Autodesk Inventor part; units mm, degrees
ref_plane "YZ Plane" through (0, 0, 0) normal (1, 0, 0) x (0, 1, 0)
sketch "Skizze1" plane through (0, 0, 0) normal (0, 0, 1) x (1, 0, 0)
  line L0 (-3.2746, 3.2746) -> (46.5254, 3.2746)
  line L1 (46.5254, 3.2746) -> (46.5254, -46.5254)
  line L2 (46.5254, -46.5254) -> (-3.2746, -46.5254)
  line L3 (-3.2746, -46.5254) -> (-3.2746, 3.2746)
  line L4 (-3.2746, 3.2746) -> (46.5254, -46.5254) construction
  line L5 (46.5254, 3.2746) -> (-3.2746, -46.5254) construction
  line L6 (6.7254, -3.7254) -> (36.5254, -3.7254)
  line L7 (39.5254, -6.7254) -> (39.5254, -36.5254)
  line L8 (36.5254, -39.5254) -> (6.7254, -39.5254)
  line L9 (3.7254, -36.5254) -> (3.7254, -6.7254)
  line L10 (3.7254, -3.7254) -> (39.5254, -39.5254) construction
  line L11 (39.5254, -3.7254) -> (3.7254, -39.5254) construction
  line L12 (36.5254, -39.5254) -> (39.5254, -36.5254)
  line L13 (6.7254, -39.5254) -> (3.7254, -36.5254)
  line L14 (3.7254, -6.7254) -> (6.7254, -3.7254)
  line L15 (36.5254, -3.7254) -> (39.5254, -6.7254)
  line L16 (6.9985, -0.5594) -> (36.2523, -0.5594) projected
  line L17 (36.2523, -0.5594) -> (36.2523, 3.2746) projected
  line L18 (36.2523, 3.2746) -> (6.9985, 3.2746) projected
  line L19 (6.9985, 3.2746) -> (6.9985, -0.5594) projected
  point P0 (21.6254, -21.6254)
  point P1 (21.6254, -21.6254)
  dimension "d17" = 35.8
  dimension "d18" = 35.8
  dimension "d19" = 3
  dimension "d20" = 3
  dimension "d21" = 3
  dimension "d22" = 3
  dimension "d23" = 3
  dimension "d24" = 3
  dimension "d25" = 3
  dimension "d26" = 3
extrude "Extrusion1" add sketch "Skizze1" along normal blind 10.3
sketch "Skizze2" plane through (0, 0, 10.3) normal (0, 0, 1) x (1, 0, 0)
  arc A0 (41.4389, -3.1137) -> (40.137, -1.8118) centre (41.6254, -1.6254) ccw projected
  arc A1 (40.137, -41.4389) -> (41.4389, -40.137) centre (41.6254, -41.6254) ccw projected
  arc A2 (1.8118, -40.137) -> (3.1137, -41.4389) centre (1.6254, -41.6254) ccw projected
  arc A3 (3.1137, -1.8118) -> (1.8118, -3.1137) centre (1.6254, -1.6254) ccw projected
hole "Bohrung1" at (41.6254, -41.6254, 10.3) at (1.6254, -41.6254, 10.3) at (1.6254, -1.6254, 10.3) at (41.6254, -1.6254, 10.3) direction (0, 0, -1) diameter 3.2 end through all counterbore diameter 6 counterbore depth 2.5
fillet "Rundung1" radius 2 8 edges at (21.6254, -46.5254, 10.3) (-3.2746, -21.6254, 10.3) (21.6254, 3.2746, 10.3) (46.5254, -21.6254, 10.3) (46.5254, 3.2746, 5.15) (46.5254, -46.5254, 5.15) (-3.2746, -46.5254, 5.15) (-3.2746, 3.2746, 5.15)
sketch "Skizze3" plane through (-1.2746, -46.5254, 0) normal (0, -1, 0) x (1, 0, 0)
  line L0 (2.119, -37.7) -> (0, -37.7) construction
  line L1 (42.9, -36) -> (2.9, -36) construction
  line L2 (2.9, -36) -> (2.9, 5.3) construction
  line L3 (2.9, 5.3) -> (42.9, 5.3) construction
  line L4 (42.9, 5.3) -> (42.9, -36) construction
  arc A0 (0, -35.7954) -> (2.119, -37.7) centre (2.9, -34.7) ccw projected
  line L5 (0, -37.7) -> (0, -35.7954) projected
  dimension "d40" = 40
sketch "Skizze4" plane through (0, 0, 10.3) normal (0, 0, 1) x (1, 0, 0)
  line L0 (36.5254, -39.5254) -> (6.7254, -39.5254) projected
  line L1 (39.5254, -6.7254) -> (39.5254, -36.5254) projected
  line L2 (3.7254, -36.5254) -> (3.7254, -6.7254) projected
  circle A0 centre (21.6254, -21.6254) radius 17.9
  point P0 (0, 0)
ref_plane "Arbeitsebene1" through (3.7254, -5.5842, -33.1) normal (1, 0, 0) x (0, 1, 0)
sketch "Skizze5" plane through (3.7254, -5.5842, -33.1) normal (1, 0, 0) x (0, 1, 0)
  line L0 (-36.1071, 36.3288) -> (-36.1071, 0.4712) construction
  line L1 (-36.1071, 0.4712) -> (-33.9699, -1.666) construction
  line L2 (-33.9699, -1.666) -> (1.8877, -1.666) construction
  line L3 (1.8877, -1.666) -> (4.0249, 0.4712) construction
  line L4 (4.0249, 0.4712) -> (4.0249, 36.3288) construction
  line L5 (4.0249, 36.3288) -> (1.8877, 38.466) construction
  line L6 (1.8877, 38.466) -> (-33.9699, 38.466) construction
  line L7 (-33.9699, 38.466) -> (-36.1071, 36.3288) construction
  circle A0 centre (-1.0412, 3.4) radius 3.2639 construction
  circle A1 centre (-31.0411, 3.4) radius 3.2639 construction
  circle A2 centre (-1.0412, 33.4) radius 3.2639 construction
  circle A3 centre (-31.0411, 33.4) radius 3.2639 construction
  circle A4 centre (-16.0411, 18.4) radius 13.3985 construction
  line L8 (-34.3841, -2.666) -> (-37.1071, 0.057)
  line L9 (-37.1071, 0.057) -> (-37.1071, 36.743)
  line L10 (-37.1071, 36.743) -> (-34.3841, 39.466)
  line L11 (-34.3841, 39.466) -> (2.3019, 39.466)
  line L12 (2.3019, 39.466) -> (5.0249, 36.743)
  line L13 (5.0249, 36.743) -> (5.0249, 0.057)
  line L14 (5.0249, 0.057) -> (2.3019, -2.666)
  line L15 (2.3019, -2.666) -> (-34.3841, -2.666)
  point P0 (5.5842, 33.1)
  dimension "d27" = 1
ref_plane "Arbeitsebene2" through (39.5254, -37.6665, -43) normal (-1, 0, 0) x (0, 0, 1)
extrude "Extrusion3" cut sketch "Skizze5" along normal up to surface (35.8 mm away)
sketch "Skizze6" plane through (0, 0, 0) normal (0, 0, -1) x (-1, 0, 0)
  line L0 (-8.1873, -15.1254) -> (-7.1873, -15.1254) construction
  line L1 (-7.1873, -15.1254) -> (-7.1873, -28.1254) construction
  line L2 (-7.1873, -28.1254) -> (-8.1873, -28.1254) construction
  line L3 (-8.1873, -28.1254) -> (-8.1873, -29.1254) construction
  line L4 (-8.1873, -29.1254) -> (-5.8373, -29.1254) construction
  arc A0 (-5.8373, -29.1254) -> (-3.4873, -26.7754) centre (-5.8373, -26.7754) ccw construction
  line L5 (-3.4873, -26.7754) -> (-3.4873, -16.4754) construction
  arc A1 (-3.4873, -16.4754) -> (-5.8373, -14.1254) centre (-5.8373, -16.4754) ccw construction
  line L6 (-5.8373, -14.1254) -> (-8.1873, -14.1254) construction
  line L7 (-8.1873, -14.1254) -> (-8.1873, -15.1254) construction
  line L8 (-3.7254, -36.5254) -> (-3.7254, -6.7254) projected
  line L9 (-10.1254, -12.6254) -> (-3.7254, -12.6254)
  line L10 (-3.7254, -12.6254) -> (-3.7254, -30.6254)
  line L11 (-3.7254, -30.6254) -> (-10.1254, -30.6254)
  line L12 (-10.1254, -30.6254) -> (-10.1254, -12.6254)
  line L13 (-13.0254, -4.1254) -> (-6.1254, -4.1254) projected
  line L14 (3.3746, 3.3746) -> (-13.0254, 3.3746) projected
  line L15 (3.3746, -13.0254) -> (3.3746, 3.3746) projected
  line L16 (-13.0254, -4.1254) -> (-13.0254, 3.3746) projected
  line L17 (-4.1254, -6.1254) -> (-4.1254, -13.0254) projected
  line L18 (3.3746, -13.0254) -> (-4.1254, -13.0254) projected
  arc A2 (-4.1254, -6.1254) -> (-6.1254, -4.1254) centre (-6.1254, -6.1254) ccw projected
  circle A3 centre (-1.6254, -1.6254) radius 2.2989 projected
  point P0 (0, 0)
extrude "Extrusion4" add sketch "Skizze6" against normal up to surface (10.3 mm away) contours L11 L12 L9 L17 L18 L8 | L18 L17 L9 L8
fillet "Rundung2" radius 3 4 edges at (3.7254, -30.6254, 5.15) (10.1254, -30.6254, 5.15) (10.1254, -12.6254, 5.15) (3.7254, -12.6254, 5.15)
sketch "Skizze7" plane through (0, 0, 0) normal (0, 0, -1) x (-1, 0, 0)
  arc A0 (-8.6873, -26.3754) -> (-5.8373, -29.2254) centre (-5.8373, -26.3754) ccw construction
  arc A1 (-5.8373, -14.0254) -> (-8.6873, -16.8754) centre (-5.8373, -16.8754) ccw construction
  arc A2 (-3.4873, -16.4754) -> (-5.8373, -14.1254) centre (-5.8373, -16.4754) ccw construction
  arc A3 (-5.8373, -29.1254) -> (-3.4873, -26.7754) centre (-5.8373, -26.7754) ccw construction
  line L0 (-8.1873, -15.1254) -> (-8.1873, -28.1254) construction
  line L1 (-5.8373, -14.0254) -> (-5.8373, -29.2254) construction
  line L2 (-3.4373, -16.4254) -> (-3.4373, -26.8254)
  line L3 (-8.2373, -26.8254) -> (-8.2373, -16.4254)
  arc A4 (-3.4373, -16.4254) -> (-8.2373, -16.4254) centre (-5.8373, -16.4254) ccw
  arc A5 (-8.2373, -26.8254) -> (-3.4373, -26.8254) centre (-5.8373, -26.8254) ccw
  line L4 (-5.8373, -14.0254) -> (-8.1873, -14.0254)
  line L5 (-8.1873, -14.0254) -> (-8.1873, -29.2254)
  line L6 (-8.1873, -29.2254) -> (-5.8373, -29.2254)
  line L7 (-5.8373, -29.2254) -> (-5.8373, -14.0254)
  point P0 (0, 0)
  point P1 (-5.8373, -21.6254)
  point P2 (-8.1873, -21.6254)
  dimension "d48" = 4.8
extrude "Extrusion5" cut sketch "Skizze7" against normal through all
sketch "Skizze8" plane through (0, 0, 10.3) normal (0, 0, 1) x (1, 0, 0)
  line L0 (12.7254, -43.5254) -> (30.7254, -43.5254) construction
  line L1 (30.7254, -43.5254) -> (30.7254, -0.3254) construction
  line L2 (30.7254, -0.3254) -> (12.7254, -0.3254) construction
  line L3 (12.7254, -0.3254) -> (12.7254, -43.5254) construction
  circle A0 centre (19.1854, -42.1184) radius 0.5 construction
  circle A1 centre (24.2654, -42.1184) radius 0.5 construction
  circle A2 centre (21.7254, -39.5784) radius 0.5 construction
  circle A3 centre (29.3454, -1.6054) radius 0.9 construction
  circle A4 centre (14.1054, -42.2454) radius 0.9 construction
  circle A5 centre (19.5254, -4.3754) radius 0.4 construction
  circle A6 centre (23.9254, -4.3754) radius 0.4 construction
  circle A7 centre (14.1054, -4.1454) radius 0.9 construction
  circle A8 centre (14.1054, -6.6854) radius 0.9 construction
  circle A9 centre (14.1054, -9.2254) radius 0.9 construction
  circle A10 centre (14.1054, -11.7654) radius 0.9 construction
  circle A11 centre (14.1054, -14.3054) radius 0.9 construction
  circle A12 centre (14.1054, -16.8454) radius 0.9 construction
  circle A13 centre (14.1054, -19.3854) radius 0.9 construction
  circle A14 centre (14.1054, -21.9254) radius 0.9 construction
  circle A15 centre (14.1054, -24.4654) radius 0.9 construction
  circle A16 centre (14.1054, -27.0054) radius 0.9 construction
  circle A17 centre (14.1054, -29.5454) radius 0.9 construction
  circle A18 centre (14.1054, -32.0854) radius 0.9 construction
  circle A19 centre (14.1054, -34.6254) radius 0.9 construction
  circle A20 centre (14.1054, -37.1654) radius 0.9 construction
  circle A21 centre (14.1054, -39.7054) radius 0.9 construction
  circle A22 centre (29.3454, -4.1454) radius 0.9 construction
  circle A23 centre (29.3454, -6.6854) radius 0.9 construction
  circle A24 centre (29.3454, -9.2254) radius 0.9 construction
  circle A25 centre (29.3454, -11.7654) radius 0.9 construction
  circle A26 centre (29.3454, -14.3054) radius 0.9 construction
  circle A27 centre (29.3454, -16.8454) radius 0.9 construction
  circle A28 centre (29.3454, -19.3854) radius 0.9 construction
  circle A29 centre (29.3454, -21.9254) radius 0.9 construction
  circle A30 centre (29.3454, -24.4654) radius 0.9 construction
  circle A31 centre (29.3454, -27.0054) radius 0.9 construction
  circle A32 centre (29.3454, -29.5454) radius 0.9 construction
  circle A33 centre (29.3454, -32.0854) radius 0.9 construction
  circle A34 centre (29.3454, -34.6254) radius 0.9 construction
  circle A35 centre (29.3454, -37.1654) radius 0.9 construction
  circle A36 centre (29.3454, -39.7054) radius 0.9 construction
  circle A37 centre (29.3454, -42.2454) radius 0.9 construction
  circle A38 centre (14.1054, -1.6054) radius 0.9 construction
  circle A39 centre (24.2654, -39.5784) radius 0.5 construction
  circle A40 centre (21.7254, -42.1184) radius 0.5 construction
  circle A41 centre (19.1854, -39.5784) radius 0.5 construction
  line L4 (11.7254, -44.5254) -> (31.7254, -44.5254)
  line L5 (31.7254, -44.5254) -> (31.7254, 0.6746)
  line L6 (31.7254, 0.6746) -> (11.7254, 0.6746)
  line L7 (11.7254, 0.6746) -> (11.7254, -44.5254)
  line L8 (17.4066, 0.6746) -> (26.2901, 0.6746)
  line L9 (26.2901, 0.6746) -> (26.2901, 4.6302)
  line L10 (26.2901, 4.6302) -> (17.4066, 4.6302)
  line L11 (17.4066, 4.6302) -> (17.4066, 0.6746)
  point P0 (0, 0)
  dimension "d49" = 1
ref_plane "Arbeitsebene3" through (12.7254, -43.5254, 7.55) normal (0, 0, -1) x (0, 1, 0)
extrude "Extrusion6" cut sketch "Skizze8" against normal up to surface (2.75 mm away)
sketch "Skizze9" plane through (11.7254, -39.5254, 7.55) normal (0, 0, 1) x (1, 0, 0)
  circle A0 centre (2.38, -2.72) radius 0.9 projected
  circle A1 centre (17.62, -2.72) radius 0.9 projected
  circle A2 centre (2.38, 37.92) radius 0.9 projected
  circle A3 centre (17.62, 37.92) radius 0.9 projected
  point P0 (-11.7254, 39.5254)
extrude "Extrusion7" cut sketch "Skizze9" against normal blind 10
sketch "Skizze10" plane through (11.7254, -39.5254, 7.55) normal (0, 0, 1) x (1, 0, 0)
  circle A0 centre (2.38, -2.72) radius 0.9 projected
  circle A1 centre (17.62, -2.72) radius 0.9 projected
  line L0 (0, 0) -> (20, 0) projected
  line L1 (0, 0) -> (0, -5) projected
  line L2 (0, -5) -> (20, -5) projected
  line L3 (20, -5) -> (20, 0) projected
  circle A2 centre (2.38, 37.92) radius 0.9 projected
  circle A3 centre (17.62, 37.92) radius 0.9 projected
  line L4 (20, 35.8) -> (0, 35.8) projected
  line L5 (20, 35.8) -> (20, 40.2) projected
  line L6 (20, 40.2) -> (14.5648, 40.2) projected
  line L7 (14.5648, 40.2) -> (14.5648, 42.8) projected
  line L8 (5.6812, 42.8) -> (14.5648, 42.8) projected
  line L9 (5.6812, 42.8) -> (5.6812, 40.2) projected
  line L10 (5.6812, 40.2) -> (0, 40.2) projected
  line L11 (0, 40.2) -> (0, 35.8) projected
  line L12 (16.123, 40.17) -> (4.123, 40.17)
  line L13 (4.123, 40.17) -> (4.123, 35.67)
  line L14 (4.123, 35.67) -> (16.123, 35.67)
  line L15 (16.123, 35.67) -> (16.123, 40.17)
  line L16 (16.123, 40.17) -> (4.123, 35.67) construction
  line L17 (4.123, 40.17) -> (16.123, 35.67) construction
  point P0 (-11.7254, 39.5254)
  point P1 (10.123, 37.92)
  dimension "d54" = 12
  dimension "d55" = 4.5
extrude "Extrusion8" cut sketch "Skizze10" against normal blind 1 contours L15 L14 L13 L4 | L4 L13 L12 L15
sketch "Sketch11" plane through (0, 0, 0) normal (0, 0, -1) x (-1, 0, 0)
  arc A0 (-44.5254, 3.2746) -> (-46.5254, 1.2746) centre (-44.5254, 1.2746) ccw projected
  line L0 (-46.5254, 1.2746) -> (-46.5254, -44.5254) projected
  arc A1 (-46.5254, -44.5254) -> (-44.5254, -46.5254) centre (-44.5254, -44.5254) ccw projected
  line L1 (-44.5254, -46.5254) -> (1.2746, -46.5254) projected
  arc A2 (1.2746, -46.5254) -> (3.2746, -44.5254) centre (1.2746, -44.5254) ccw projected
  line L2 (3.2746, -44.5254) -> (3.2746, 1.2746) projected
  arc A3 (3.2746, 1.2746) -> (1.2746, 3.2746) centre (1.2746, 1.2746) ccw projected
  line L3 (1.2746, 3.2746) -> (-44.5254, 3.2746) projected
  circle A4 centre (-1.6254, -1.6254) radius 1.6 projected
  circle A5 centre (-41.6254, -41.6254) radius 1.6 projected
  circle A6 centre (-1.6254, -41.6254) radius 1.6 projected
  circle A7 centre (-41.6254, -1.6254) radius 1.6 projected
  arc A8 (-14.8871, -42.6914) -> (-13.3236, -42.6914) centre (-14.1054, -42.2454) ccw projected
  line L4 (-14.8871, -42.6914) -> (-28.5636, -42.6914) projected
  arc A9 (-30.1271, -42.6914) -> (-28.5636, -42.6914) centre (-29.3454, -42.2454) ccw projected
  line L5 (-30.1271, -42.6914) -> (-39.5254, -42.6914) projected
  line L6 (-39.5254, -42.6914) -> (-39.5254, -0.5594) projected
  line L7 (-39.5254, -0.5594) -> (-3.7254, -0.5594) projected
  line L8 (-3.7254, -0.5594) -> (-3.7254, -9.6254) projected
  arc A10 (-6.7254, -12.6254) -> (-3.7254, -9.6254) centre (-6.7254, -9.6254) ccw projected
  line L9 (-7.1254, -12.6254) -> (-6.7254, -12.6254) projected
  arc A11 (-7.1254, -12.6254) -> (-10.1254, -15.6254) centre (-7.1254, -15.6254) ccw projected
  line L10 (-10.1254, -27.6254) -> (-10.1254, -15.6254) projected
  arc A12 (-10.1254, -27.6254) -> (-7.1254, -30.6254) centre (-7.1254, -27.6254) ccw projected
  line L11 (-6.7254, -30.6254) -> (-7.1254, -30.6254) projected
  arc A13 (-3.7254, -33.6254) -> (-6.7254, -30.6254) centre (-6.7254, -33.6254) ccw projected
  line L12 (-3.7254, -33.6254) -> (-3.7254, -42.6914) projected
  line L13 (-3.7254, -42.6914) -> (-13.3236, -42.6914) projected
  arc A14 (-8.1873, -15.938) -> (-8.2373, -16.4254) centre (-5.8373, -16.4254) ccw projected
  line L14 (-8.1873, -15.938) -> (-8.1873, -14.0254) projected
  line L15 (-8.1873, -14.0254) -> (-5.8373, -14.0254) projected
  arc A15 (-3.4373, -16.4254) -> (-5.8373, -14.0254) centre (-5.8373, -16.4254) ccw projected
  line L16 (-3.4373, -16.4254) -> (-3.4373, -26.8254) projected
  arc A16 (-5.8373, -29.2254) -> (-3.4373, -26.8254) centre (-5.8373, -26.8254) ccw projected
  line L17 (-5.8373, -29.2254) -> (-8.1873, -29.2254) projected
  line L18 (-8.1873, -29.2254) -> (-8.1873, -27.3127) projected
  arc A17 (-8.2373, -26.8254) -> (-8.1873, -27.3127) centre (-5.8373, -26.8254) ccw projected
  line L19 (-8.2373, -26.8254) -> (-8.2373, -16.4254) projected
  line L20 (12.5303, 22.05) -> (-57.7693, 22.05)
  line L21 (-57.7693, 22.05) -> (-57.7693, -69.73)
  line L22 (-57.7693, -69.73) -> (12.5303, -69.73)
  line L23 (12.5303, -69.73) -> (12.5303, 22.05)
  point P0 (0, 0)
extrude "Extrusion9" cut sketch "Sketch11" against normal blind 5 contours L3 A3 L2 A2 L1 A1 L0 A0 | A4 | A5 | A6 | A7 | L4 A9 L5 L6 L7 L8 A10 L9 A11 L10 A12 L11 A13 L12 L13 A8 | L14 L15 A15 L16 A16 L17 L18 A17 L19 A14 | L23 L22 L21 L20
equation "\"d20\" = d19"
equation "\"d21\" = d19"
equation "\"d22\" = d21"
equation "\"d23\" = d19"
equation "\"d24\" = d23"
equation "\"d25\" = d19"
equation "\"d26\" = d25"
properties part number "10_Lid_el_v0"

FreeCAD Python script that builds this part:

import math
import FreeCAD as App
import Part
import Sketcher
from FreeCAD import Vector


def edges_at(feature, points):
    """Names of the edges that pass closest to the given points."""
    edges = feature.Shape.Edges
    near = lambda p: min(range(len(edges)), key=lambda i: edges[i].distToShape(Part.Vertex(*p))[0])
    return sorted({f"Edge{near(p) + 1}" for p in points})


def add_polygon(sketch, points):
    """Adds a closed chain of lines whose ends are joined by coincident constraints."""
    first, n = sketch.GeometryCount, len(points)
    for a, b in zip(points, points[1:] + points[:1]):
        sketch.addGeometry(Part.LineSegment(App.Vector(*a, 0), App.Vector(*b, 0)), False)
    for i in range(n):
        sketch.addConstraint(Sketcher.Constraint("Coincident", first + i, 2, first + (i + 1) % n, 1))

doc = App.newDocument("Part")
params = doc.addObject("Spreadsheet::Sheet", "Params")
for row, (alias, value) in enumerate([
    ("sketch1_width", "49.8 mm"),
    ("pad1_length", "10.3 mm"),
    ("sketch2_diameter", "3.2 mm"),
    ("hole_diameter", "3.2 mm"),
    ("hole_cbore_diameter", "6 mm"),
    ("hole_cbore_depth", "2.5 mm"),
    ("fillet_radius", "2 mm"),
    ("pocket1_length", "35.8 mm"),
    ("sketch4_height", "18 mm"),
    ("sketch4_width", "6.4 mm"),
    ("pad2_length", "10.3 mm"),
    ("fillet2_radius", "3 mm"),
    ("sketch5_radius", "2.4 mm"),
    ("sketch5_height", "10.4 mm"),
    ("sketch5_width", "2.35 mm"),
    ("sketch6_width", "20 mm"),
    ("sketch6_height", "45.2 mm"),
    ("pocket3_length", "2.75 mm"),
    ("sketch7_diameter", "1.8 mm"),
    ("pocket4_length", "10 mm"),
    ("sketch8_width", "12 mm"),
    ("sketch8_height", "4.5 mm"),
    ("pocket5_length", "1 mm"),
    ("sketch9_height", "91.78 mm"),
    ("pocket6_length", "5 mm"),
], start=1):
    params.set(f"A{row}", alias)
    params.set(f"B{row}", "=" + value)
    params.setAlias(f"B{row}", alias)

body = doc.addObject("PartDesign::Body", "Body")

# Sketch on XY plane
sketch1 = body.newObject("Sketcher::SketchObject", "Sketch")
sketch1.AttachmentSupport = (doc.getObject("XY_Plane"), [""])
sketch1.MapMode = "FlatFace"
add_polygon(sketch1, [(-3.3, 3.3), (-3.3, -46.5), (46.5, -46.5), (46.5, 3.3)])  # lines 0-3
add_polygon(sketch1, [(3.7, -6.7), (6.7, -3.7), (36.5, -3.7), (39.5, -6.7), (39.5, -36.5), (36.5, -39.5), (6.7, -39.5), (3.7, -36.5)])  # lines 4-11
sketch1.addConstraint([
    Sketcher.Constraint("Vertical", 0),
    Sketcher.Constraint("Horizontal", 1),
    Sketcher.Constraint("Vertical", 2),
    Sketcher.Constraint("Horizontal", 3),
    Sketcher.Constraint("Horizontal", 5),
    Sketcher.Constraint("Vertical", 7),
    Sketcher.Constraint("Horizontal", 9),
    Sketcher.Constraint("Vertical", 11),
    Sketcher.Constraint("Perpendicular", 4, 6),
    Sketcher.Constraint("Perpendicular", 6, 8),
    Sketcher.Constraint("Perpendicular", 8, 10),
    Sketcher.Constraint("Horizontal", 7, 2, 10, 2),
    Sketcher.Constraint("Horizontal", 6, 2, 11, 2),
    Sketcher.Constraint("Vertical", 5, 2, 8, 2),
    Sketcher.Constraint("Vertical", 4, 2, 9, 2),
    Sketcher.Constraint("Equal", 3, 0),
    Sketcher.Constraint("Equal", 9, 7),
    Sketcher.Constraint("DistanceX", 5, 2, 6, 2, 3.0),
    Sketcher.Constraint("DistanceY", 8, 2, 5, 2, 35.8),
    Sketcher.Constraint("DistanceX", 1, 1, 1, 2, 49.8),
    Sketcher.Constraint("DistanceX", 3, 2, 4, 2, 10.0),
    Sketcher.Constraint("DistanceY", 4, 2, 3, 2, 7.0),
    Sketcher.Constraint("DistanceX", 0, 2, -1, 1, 3.2746),
    Sketcher.Constraint("DistanceY", 0, 2, -1, 1, 46.5254),
])
sketch1.setExpression("Constraints[31]", "Params.sketch1_width")
pad1 = body.newObject("PartDesign::Pad", "Pad")
pad1.Profile = sketch1
pad1.setExpression("Length", "Params.pad1_length")

# Sketch on XY plane
sketch2 = body.newObject("Sketcher::SketchObject", "Sketch001")
sketch2.AttachmentSupport = (doc.getObject("XY_Plane"), [""])
sketch2.MapMode = "FlatFace"
sketch2.AttachmentOffset = App.Placement(Vector(0, 0, 10.3), App.Rotation())
sketch2.addGeometry([
    Part.Circle(Vector(41.6, -41.6, 0), Vector(0, 0, 1), 1.6),
    Part.Circle(Vector(1.6, -41.6, 0), Vector(0, 0, 1), 1.6),
    Part.Circle(Vector(1.6, -1.6, 0), Vector(0, 0, 1), 1.6),
    Part.Circle(Vector(41.6, -1.6, 0), Vector(0, 0, 1), 1.6),
], False)
sketch2.addConstraint([
    Sketcher.Constraint("Equal", 0, 1),
    Sketcher.Constraint("Equal", 1, 2),
    Sketcher.Constraint("Equal", 2, 3),
    Sketcher.Constraint("Horizontal", 0, 3, 1, 3),
    Sketcher.Constraint("Horizontal", 2, 3, 3, 3),
    Sketcher.Constraint("Vertical", 1, 3, 2, 3),
    Sketcher.Constraint("Vertical", 0, 3, 3, 3),
    Sketcher.Constraint("Diameter", 0, 3.2),
    Sketcher.Constraint("DistanceX", 1, 3, 0, 3, 40.0),
    Sketcher.Constraint("DistanceY", 1, 3, 2, 3, 40.0),
    Sketcher.Constraint("DistanceX", -1, 1, 0, 3, 41.6254),
    Sketcher.Constraint("DistanceY", 0, 3, -1, 1, 41.6254),
])
sketch2.setExpression("Constraints[7]", "Params.sketch2_diameter")
doc.recompute()
hole = body.newObject("PartDesign::Hole", "Hole")
hole.Profile = sketch2
hole.ThreadType = "None"
hole.setExpression("Diameter", "Params.hole_diameter")
hole.DepthType = "ThroughAll"
hole.HoleCutType = "Counterbore"
hole.setExpression("HoleCutDiameter", "Params.hole_cbore_diameter")
hole.setExpression("HoleCutDepth", "Params.hole_cbore_depth")
doc.recompute()

fillet = body.newObject("PartDesign::Fillet", "Fillet")
fillet.Base = (hole, edges_at(hole, [
    (21.625, -46.525, 10.3),
    (-3.275, -21.625, 10.3),
    (21.625, 3.275, 10.3),
    (46.525, -21.625, 10.3),
    (46.525, 3.275, 5.15),
    (46.525, -46.525, 5.15),
    (-3.275, -46.525, 5.15),
    (-3.275, 3.275, 5.15),
]))
fillet.setExpression("Radius", "Params.fillet_radius")

# Sketch on YZ plane
sketch3 = body.newObject("Sketcher::SketchObject", "Sketch002")
sketch3.AttachmentSupport = (doc.getObject("YZ_Plane"), [""])
sketch3.MapMode = "FlatFace"
sketch3.AttachmentOffset = App.Placement(Vector(0, 0, 3.7254), App.Rotation())
add_polygon(sketch3, [(-42.7, -33), (-40, -35.8), (-3.3, -35.8), (-0.6, -33), (-0.6, 3.6), (-3.3, 6.4), (-40, 6.4), (-42.7, 3.6)])  # lines 0-7
sketch3.addConstraint([
    Sketcher.Constraint("Horizontal", 1),
    Sketcher.Constraint("Vertical", 3),
    Sketcher.Constraint("Horizontal", 5),
    Sketcher.Constraint("Vertical", 7),
    Sketcher.Constraint("Perpendicular", 0, 2),
    Sketcher.Constraint("Perpendicular", 2, 4),
    Sketcher.Constraint("Perpendicular", 4, 6),
    Sketcher.Constraint("Horizontal", 3, 2, 6, 2),
    Sketcher.Constraint("Horizontal", 2, 2, 7, 2),
    Sketcher.Constraint("Vertical", 1, 2, 4, 2),
    Sketcher.Constraint("Vertical", 0, 2, 5, 2),
    Sketcher.Constraint("Equal", 5, 3),
    Sketcher.Constraint("DistanceX", 1, 1, 1, 2, 36.686),
    Sketcher.Constraint("Distance", 0, 3.851),
    Sketcher.Constraint("DistanceY", 0, 2, -1, 1, 35.766),
    Sketcher.Constraint("DistanceX", 0, 2, -1, 1, 39.9683),
])
pocket1 = body.newObject("PartDesign::Pocket", "Pocket")
pocket1.Profile = sketch3
pocket1.setExpression("Length", "Params.pocket1_length")
pocket1.Reversed = True

# Sketch on XY plane
sketch4 = body.newObject("Sketcher::SketchObject", "Sketch003")
sketch4.AttachmentSupport = (doc.getObject("XY_Plane"), [""])
sketch4.MapMode = "FlatFace"
add_polygon(sketch4, [(10, -31), (4, -31), (4, -13), (10, -13)])  # lines 0-3
sketch4.addConstraint([
    Sketcher.Constraint("Horizontal", 0),
    Sketcher.Constraint("Vertical", 1),
    Sketcher.Constraint("Horizontal", 2),
    Sketcher.Constraint("Vertical", 3),
    Sketcher.Constraint("DistanceY", 1, 1, 1, 2, 18.0),
    Sketcher.Constraint("DistanceX", 0, 2, 0, 1, 6.4),
    Sketcher.Constraint("DistanceX", -1, 1, 0, 2, 3.7254),
    Sketcher.Constraint("DistanceY", 0, 2, -1, 1, 30.6254),
])
sketch4.setExpression("Constraints[8]", "Params.sketch4_height")
sketch4.setExpression("Constraints[9]", "Params.sketch4_width")
pad2 = body.newObject("PartDesign::Pad", "Pad001")
pad2.Profile = sketch4
pad2.setExpression("Length", "Params.pad2_length")
doc.recompute()

fillet2 = body.newObject("PartDesign::Fillet", "Fillet001")
fillet2.Base = (pad2, edges_at(pad2, [
    (3.725, -30.625, 5.15),
    (10.125, -30.625, 5.15),
    (10.125, -12.625, 5.15),
    (3.725, -12.625, 5.15),
]))
fillet2.setExpression("Radius", "Params.fillet2_radius")

# Sketch on XY plane
sketch5 = body.newObject("Sketcher::SketchObject", "Sketch004")
sketch5.AttachmentSupport = (doc.getObject("XY_Plane"), [""])
sketch5.MapMode = "FlatFace"
sketch5.addGeometry([
    Part.LineSegment(Vector(3.44, -26.83, 0), Vector(3.44, -16.43, 0)),  # 0
    Part.ArcOfCircle(Part.Circle(Vector(5.84, -16.43, 0), Vector(0, 0, 1), 2.4), math.radians(90), math.radians(180)),  # 1
    Part.LineSegment(Vector(5.84, -14.03, 0), Vector(8.19, -14.03, 0)),  # 2
    Part.LineSegment(Vector(8.19, -14.03, 0), Vector(8.19, -15.94, 0)),  # 3
    Part.ArcOfCircle(Part.Circle(Vector(5.84, -16.43, 0), Vector(0, 0, 1), 2.4), math.radians(0), math.radians(11.72)),  # 4
    Part.LineSegment(Vector(8.24, -16.43, 0), Vector(8.24, -26.83, 0)),  # 5
    Part.ArcOfCircle(Part.Circle(Vector(5.84, -26.83, 0), Vector(0, 0, 1), 2.4), math.radians(-11.72), math.radians(0)),  # 6
    Part.LineSegment(Vector(8.19, -27.31, 0), Vector(8.19, -29.23, 0)),  # 7
    Part.LineSegment(Vector(8.19, -29.23, 0), Vector(5.84, -29.23, 0)),  # 8
    Part.ArcOfCircle(Part.Circle(Vector(5.84, -26.83, 0), Vector(0, 0, 1), 2.4), math.radians(180), math.radians(270)),  # 9
], False)
sketch5.addConstraint([
    Sketcher.Constraint("Tangent", 0, 2, 1, 2),
    Sketcher.Constraint("Tangent", 1, 1, 2, 1),
    Sketcher.Constraint("Coincident", 2, 2, 3, 1),
    Sketcher.Constraint("Coincident", 3, 2, 4, 2),
    Sketcher.Constraint("Tangent", 4, 1, 5, 1),
    Sketcher.Constraint("Tangent", 5, 2, 6, 2),
    Sketcher.Constraint("Coincident", 6, 1, 7, 1),
    Sketcher.Constraint("Coincident", 7, 2, 8, 1),
    Sketcher.Constraint("Tangent", 8, 2, 9, 2),
    Sketcher.Constraint("Tangent", 9, 1, 0, 1),
    Sketcher.Constraint("Vertical", 0),
    Sketcher.Constraint("Horizontal", 2),
    Sketcher.Constraint("Vertical", 3),
    Sketcher.Constraint("Vertical", 5),
    Sketcher.Constraint("Vertical", 7),
    Sketcher.Constraint("Horizontal", 8),
    Sketcher.Constraint("Coincident", 4, 3, 1, 3),
    Sketcher.Constraint("Coincident", 9, 3, 6, 3),
    Sketcher.Constraint("Equal", 1, 4),
    Sketcher.Constraint("Equal", 4, 6),
    Sketcher.Constraint("Vertical", 3, 2, 6, 1),
    Sketcher.Constraint("Radius", 1, 2.4),
    Sketcher.Constraint("DistanceY", 0, 1, 0, 2, 10.4),
    Sketcher.Constraint("DistanceX", 2, 1, 2, 2, 2.35),
    Sketcher.Constraint("DistanceY", 3, 2, -1, 1, 15.938),
    Sketcher.Constraint("DistanceX", -1, 1, 1, 3, 5.8373),
])
sketch5.setExpression("Constraints[21]", "Params.sketch5_radius")
sketch5.setExpression("Constraints[22]", "Params.sketch5_height")
sketch5.setExpression("Constraints[23]", "Params.sketch5_width")
pocket2 = body.newObject("PartDesign::Pocket", "Pocket001")
pocket2.Profile = sketch5
pocket2.Type = "ThroughAll"
pocket2.Reversed = True

# Sketch on XY plane
sketch6 = body.newObject("Sketcher::SketchObject", "Sketch005")
sketch6.AttachmentSupport = (doc.getObject("XY_Plane"), [""])
sketch6.MapMode = "FlatFace"
sketch6.AttachmentOffset = App.Placement(Vector(0, 0, 10.3), App.Rotation())
add_polygon(sketch6, [(11.7, 0.7), (11.7, -44.5), (31.7, -44.5), (31.7, 0.7), (26.3, 0.7), (26.3, 4.6), (17.4, 4.6), (17.4, 0.7)])  # lines 0-7
sketch6.addConstraint([
    Sketcher.Constraint("Vertical", 0),
    Sketcher.Constraint("Horizontal", 1),
    Sketcher.Constraint("Vertical", 2),
    Sketcher.Constraint("Horizontal", 3),
    Sketcher.Constraint("Vertical", 4),
    Sketcher.Constraint("Horizontal", 5),
    Sketcher.Constraint("Vertical", 6),
    Sketcher.Constraint("Horizontal", 7),
    Sketcher.Constraint("Horizontal", 3, 2, 6, 2),
    Sketcher.Constraint("DistanceX", 1, 1, 1, 2, 20.0),
    Sketcher.Constraint("DistanceY", 0, 2, 0, 1, 45.2),
    Sketcher.Constraint("DistanceX", -1, 1, 3, 2, 26.29),
    Sketcher.Constraint("DistanceX", 3, 2, 3, 1, 5.4353),
    Sketcher.Constraint("DistanceX", 5, 2, 5, 1, 8.8835),
    Sketcher.Constraint("DistanceY", 4, 1, 4, 2, 3.9556),
    Sketcher.Constraint("DistanceY", 0, 2, -1, 1, 44.5254),
])
sketch6.setExpression("Constraints[17]", "Params.sketch6_width")
sketch6.setExpression("Constraints[18]", "Params.sketch6_height")
pocket3 = body.newObject("PartDesign::Pocket", "Pocket002")
pocket3.Profile = sketch6
pocket3.setExpression("Length", "Params.pocket3_length")

# Sketch on XY plane
sketch7 = body.newObject("Sketcher::SketchObject", "Sketch006")
sketch7.AttachmentSupport = (doc.getObject("XY_Plane"), [""])
sketch7.MapMode = "FlatFace"
sketch7.AttachmentOffset = App.Placement(Vector(0, 0, 7.55), App.Rotation())
sketch7.addGeometry([
    Part.Circle(Vector(14.1, -42.2, 0), Vector(0, 0, 1), 0.9),
    Part.Circle(Vector(29.3, -42.2, 0), Vector(0, 0, 1), 0.9),
    Part.Circle(Vector(14.1, -1.6, 0), Vector(0, 0, 1), 0.9),
    Part.Circle(Vector(29.3, -1.6, 0), Vector(0, 0, 1), 0.9),
], False)
sketch7.addConstraint([
    Sketcher.Constraint("Equal", 0, 1),
    Sketcher.Constraint("Equal", 1, 2),
    Sketcher.Constraint("Equal", 2, 3),
    Sketcher.Constraint("Horizontal", 0, 3, 1, 3),
    Sketcher.Constraint("Horizontal", 2, 3, 3, 3),
    Sketcher.Constraint("Vertical", 0, 3, 2, 3),
    Sketcher.Constraint("Vertical", 1, 3, 3, 3),
    Sketcher.Constraint("Diameter", 0, 1.8),
    Sketcher.Constraint("DistanceX", 0, 3, 1, 3, 15.24),
    Sketcher.Constraint("DistanceY", 0, 3, 2, 3, 40.64),
    Sketcher.Constraint("DistanceX", -1, 1, 0, 3, 14.1054),
    Sketcher.Constraint("DistanceY", 0, 3, -1, 1, 42.2454),
])
sketch7.setExpression("Constraints[7]", "Params.sketch7_diameter")
pocket4 = body.newObject("PartDesign::Pocket", "Pocket003")
pocket4.Profile = sketch7
pocket4.setExpression("Length", "Params.pocket4_length")

# Sketch on XY plane
sketch8 = body.newObject("Sketcher::SketchObject", "Sketch007")
sketch8.AttachmentSupport = (doc.getObject("XY_Plane"), [""])
sketch8.MapMode = "FlatFace"
sketch8.AttachmentOffset = App.Placement(Vector(0, 0, 7.55), App.Rotation())
add_polygon(sketch8, [(27.8, -3.9), (27.8, 0.6), (15.8, 0.6), (15.8, -3.9)])  # lines 0-3
sketch8.addConstraint([
    Sketcher.Constraint("Vertical", 0),
    Sketcher.Constraint("Horizontal", 1),
    Sketcher.Constraint("Vertical", 2),
    Sketcher.Constraint("Horizontal", 3),
    Sketcher.Constraint("DistanceX", 1, 2, 1, 1, 12.0),
    Sketcher.Constraint("DistanceY", 0, 1, 0, 2, 4.5),
    Sketcher.Constraint("DistanceX", -1, 1, 0, 2, 27.8484),
    Sketcher.Constraint("DistanceY", -1, 1, 0, 2, 0.6446),
])
sketch8.setExpression("Constraints[8]", "Params.sketch8_width")
sketch8.setExpression("Constraints[9]", "Params.sketch8_height")
pocket5 = body.newObject("PartDesign::Pocket", "Pocket004")
pocket5.Profile = sketch8
pocket5.setExpression("Length", "Params.pocket5_length")

# Sketch on XY plane
sketch9 = body.newObject("Sketcher::SketchObject", "Sketch008")
sketch9.AttachmentSupport = (doc.getObject("XY_Plane"), [""])
sketch9.MapMode = "FlatFace"
add_polygon(sketch9, [(-13, -70), (-13, 22), (58, 22), (58, -70)])  # lines 0-3
sketch9.addConstraint([
    Sketcher.Constraint("Vertical", 0),
    Sketcher.Constraint("Horizontal", 1),
    Sketcher.Constraint("Vertical", 2),
    Sketcher.Constraint("Horizontal", 3),
    Sketcher.Constraint("DistanceY", 0, 1, 0, 2, 91.78),
    Sketcher.Constraint("DistanceY", -1, 1, 0, 2, 22.05),
    Sketcher.Constraint("DistanceX", 1, 1, 1, 2, 70.2996),
    Sketcher.Constraint("DistanceX", 0, 2, -1, 1, 12.5303),
])
sketch9.setExpression("Constraints[8]", "Params.sketch9_height")
pocket6 = body.newObject("PartDesign::Pocket", "Pocket005")
pocket6.Profile = sketch9
pocket6.setExpression("Length", "Params.pocket6_length")
pocket6.Reversed = True

doc.recompute()
